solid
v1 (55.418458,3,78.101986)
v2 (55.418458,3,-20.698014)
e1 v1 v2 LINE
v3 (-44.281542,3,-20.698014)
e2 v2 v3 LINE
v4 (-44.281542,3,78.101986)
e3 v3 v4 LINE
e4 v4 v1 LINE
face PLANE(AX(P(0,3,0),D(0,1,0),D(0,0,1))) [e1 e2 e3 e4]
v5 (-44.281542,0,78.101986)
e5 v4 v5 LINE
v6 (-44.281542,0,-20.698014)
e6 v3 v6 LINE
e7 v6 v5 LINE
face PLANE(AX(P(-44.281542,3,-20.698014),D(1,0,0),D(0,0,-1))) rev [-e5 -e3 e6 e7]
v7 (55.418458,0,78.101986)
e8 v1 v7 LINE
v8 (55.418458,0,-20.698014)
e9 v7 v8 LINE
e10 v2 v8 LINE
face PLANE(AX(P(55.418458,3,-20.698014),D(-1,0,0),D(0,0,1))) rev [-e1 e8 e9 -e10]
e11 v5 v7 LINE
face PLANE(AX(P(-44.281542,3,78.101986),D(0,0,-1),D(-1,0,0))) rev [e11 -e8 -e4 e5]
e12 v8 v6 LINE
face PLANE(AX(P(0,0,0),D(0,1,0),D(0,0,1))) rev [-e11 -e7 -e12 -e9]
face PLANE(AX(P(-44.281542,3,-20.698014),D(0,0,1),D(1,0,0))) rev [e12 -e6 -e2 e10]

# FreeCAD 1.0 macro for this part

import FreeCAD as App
import Part
import Sketcher
from FreeCAD import Vector
Q = App.Units.Quantity

doc = App.newDocument("Part")
params = doc.addObject("Spreadsheet::Sheet", "Params")
for row, (alias, value) in enumerate([
    ("sketch1_width", "99.7 mm"),
    ("sketch1_height", "98.8 mm"),
    ("pad1_length", "3 mm"),
], start=1):
    params.set(f"A{row}", alias)
    params.set(f"B{row}", "=" + value)
    params.setAlias(f"B{row}", alias)

body = doc.addObject("PartDesign::Body", "Body")

sketch1 = doc.addObject("Sketcher::SketchObject", "Sketch")
body.addObject(sketch1)
sketch1.AttachmentSupport = (doc.XZ_Plane, [""])
sketch1.MapMode = "FlatFace"
sketch1.addGeometry([
    Part.LineSegment(Vector(-44, -21, 0), Vector(-44, 78, 0)),
    Part.LineSegment(Vector(-44, 78, 0), Vector(55, 78, 0)),
    Part.LineSegment(Vector(55, 78, 0), Vector(55, -21, 0)),
    Part.LineSegment(Vector(55, -21, 0), Vector(-44, -21, 0)),
], False)
sketch1.addConstraint([
    Sketcher.Constraint("Coincident", 0, 2, 1, 1),
    Sketcher.Constraint("Coincident", 1, 2, 2, 1),
    Sketcher.Constraint("Coincident", 2, 2, 3, 1),
    Sketcher.Constraint("Coincident", 3, 2, 0, 1),
    Sketcher.Constraint("Vertical", 0),
    Sketcher.Constraint("Horizontal", 1),
    Sketcher.Constraint("Vertical", 2),
    Sketcher.Constraint("Horizontal", 3),
    Sketcher.Constraint("DistanceX", 1, 1, 1, 2, Q("99.7 mm")),
    Sketcher.Constraint("DistanceY", 0, 1, 0, 2, Q("98.8 mm")),
    Sketcher.Constraint("DistanceX", 0, 2, -1, 1, Q("44.281542 mm")),
    Sketcher.Constraint("DistanceY", -1, 1, 0, 2, Q("78.101986 mm")),
])
sketch1.setExpression("Constraints[8]", "Params.sketch1_width")
sketch1.setExpression("Constraints[9]", "Params.sketch1_height")
pad1 = doc.addObject("PartDesign::Pad", "Pad")
body.addObject(pad1)
pad1.Profile = sketch1
pad1.setExpression("Length", "Params.pad1_length")
pad1.Reversed = True

doc.recompute()
